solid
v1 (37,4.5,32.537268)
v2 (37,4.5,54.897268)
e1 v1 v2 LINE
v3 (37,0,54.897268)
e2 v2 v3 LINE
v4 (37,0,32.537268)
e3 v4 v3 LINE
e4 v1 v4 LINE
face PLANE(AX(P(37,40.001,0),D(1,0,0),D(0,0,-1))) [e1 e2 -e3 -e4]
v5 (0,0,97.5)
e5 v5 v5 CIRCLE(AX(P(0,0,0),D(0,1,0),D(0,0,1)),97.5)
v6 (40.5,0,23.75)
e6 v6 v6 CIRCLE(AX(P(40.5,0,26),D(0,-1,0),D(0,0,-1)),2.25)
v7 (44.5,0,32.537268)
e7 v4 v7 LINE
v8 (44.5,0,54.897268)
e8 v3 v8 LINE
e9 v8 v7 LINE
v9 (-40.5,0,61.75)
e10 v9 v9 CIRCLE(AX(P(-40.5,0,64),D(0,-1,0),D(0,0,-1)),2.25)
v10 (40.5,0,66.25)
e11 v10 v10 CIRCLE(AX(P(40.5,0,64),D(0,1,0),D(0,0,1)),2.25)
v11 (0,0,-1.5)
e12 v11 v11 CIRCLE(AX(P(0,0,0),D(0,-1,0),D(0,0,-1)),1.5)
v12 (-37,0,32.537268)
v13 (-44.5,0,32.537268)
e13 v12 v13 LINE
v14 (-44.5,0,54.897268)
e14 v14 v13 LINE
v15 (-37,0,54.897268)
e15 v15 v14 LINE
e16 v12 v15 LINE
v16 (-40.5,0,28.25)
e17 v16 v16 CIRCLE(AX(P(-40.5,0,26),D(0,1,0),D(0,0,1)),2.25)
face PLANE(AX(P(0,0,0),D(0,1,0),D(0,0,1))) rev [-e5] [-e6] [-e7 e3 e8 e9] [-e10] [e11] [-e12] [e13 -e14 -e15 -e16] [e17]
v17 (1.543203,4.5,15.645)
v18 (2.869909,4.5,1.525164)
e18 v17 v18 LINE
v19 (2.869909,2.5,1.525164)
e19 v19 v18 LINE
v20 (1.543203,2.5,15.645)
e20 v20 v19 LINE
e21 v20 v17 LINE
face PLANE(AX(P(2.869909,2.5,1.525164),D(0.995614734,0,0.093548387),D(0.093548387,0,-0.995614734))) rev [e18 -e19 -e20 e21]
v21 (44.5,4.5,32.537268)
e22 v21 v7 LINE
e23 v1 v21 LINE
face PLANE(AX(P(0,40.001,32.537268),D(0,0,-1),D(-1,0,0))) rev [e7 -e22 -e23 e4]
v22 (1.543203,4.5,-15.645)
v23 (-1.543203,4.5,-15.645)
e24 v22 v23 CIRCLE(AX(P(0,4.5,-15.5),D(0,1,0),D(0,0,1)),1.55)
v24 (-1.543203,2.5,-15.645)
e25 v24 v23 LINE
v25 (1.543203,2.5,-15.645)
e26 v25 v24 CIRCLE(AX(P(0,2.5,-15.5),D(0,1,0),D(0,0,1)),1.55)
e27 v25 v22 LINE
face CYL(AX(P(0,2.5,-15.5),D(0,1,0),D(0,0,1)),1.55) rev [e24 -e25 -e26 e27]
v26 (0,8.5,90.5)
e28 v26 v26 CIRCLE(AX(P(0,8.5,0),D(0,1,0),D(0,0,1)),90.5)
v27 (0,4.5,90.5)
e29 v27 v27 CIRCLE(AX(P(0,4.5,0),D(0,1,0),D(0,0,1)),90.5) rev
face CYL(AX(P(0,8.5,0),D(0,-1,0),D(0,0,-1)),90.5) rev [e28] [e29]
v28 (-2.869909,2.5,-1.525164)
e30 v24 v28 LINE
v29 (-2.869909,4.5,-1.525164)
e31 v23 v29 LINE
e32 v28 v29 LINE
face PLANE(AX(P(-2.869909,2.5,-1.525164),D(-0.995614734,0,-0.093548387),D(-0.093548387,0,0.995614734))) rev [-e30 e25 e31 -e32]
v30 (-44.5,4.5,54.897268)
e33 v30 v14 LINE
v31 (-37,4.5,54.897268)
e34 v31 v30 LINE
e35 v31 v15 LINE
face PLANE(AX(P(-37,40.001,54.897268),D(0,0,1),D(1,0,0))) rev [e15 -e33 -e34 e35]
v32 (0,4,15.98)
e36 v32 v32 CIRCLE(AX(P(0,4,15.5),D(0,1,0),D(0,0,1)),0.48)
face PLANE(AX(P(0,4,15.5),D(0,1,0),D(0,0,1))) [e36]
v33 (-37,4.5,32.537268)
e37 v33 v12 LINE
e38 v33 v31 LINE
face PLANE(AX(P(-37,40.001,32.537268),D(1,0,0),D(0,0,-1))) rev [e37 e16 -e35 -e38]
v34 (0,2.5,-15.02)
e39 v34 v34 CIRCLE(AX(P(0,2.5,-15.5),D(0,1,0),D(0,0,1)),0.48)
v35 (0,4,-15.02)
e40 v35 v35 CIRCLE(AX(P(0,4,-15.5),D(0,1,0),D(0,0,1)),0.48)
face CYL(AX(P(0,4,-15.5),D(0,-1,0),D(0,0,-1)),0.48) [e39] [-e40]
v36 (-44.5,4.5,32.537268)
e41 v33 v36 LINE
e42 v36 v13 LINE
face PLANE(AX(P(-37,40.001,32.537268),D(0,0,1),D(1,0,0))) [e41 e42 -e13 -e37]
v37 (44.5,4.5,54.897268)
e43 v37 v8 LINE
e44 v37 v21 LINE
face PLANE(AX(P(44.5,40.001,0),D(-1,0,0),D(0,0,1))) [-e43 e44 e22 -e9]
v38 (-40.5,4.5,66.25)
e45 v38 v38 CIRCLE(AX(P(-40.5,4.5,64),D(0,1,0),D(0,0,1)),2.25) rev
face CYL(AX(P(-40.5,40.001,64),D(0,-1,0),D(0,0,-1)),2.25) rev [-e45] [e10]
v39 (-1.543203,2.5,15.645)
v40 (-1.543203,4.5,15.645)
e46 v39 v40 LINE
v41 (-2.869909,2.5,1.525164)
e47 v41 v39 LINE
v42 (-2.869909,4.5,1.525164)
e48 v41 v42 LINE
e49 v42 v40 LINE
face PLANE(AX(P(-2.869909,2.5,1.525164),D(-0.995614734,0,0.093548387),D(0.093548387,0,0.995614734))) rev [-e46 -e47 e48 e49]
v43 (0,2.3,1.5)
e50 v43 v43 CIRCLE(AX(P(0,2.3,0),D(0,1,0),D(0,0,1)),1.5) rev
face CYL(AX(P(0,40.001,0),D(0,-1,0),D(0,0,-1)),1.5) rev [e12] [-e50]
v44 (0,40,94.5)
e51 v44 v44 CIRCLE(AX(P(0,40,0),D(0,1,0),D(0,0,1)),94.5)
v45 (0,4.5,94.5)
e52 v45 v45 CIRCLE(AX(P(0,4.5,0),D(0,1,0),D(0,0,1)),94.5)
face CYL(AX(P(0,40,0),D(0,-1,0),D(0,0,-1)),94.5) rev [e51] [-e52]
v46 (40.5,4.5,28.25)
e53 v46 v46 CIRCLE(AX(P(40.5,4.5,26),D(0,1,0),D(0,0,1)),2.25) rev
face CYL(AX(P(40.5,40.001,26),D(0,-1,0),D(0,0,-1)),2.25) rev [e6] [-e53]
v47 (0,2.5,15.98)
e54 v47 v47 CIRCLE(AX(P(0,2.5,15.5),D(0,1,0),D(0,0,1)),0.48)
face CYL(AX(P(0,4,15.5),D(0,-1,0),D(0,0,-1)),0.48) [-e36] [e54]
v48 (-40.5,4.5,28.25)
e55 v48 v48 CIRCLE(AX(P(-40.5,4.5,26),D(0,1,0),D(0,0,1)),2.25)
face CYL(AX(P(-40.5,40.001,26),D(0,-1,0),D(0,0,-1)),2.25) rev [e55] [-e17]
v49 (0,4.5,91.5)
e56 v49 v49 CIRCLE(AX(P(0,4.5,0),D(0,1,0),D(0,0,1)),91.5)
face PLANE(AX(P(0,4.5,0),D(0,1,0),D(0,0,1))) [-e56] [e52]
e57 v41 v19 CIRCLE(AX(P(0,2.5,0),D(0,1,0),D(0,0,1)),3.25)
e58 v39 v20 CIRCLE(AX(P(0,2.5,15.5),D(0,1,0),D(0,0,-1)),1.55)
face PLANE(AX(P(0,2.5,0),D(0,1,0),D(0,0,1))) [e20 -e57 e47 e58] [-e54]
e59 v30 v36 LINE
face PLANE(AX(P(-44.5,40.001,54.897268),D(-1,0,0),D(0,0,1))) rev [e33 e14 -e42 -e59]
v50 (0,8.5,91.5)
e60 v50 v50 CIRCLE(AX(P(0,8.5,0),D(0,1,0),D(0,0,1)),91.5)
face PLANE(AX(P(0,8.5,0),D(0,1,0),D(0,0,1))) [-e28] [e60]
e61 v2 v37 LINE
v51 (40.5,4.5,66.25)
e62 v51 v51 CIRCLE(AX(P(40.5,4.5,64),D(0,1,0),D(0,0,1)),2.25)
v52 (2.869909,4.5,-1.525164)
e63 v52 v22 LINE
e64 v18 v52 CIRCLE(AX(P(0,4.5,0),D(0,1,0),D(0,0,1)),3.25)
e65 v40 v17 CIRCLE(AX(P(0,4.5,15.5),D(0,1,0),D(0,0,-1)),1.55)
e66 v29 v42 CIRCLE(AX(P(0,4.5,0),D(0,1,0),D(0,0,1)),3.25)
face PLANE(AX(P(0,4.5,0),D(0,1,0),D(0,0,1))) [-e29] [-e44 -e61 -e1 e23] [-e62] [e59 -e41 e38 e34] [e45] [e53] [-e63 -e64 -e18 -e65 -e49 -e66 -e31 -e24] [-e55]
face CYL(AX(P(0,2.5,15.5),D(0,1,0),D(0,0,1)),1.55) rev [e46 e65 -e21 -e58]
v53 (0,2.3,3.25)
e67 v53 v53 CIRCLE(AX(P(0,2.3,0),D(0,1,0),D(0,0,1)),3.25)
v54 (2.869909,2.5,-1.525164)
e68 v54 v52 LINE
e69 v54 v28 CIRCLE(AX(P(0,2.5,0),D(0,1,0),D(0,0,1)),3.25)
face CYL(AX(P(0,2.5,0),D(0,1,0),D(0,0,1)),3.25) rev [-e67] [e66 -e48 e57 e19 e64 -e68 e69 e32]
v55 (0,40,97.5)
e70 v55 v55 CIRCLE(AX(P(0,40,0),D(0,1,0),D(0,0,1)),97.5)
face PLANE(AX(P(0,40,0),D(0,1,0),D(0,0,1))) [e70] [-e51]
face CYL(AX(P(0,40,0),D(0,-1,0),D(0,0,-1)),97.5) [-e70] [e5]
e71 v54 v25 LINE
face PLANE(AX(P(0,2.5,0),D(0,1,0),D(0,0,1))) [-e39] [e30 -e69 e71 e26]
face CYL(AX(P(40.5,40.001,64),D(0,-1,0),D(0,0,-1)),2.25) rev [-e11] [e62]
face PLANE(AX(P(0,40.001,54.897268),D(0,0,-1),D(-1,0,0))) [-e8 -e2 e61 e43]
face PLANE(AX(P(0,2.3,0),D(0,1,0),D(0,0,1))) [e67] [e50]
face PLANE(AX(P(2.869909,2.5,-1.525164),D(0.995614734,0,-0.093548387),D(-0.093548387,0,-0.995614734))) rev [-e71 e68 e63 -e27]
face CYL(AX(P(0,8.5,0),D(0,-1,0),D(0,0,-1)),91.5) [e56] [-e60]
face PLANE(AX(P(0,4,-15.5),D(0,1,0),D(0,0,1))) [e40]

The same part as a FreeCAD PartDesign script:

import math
import FreeCAD as App
import Part
import Sketcher
from FreeCAD import Vector
Q = App.Units.Quantity


def faces_at(feature, points):
    """Names of the faces that lie closest to the given points."""
    faces = feature.Shape.Faces
    near = lambda p: min(range(len(faces)), key=lambda i: faces[i].distToShape(Part.Vertex(*p))[0])
    return sorted({f"Face{near(p) + 1}" for p in points})

doc = App.newDocument("Part")
body = doc.addObject("PartDesign::Body", "Body")

# Sketch on XZ plane
sketch1 = body.newObject("Sketcher::SketchObject", "Sketch")
sketch1.AttachmentSupport = (doc.getObject("XZ_Plane"), [""])
sketch1.MapMode = "FlatFace"
sketch1.addGeometry(Part.Circle(Vector(0, 0, 0), Vector(0, 0, 1), 98), False)
sketch1.addConstraint(Sketcher.Constraint("Coincident", 0, 3, -1, 1))
sketch1.addConstraint(Sketcher.Constraint("Diameter", 0, Q("195 mm")))
pad1 = body.newObject("PartDesign::Pad", "Pad")
pad1.Profile = sketch1
pad1.Length = 40
pad1.Reversed = True
doc.recompute()

thickness = body.newObject("PartDesign::Thickness", "Thickness")
thickness.Base = (pad1, faces_at(pad1, [(0, 40, 0)]))
thickness.Value = 3
thickness.Reversed = True
thickness.Join = "Intersection"

# Sketch on XZ plane
sketch2 = body.newObject("Sketcher::SketchObject", "Sketch001")
sketch2.AttachmentSupport = (doc.getObject("XZ_Plane"), [""])
sketch2.MapMode = "FlatFace"
sketch2.AttachmentOffset = App.Placement(Vector(0, 0, -3), App.Rotation())
sketch2.addGeometry(Part.Circle(Vector(0, 0, 0), Vector(0, 0, 1), 94), False)
sketch2.addConstraint(Sketcher.Constraint("Coincident", 0, 3, -1, 1))
sketch2.addConstraint(Sketcher.Constraint("Diameter", 0, Q("189 mm")))
pad2 = body.newObject("PartDesign::Pad", "Pad001")
pad2.Profile = sketch2
pad2.Length = 1.5
pad2.Reversed = True

# Sketch on XZ plane
sketch3 = body.newObject("Sketcher::SketchObject", "Sketch002")
sketch3.AttachmentSupport = (doc.getObject("XZ_Plane"), [""])
sketch3.MapMode = "FlatFace"
sketch3.AttachmentOffset = App.Placement(Vector(0, 0, -4.5), App.Rotation())
sketch3.addGeometry(Part.LineSegment(Vector(2.9, -1.5, 0), Vector(1.5, -15.6, 0)), False)
sketch3.addGeometry(Part.ArcOfCircle(Part.Circle(Vector(0, -15.5, 0), Vector(0, 0, 1), 1.6), math.radians(-175), math.radians(-5)), False)
sketch3.addGeometry(Part.LineSegment(Vector(-1.5, -15.6, 0), Vector(-2.9, -1.5, 0)), False)
sketch3.addGeometry(Part.ArcOfCircle(Part.Circle(Vector(0, 0, 0), Vector(0, 0, 1), 3.2), math.radians(152), math.radians(208)), False)
sketch3.addGeometry(Part.LineSegment(Vector(-2.9, 1.5, 0), Vector(-1.5, 15.6, 0)), False)
sketch3.addGeometry(Part.ArcOfCircle(Part.Circle(Vector(0, 15.5, 0), Vector(0, 0, 1), 1.6), math.radians(5), math.radians(175)), False)
sketch3.addGeometry(Part.LineSegment(Vector(1.5, 15.6, 0), Vector(2.9, 1.5, 0)), False)
sketch3.addGeometry(Part.ArcOfCircle(Part.Circle(Vector(0, 0, 0), Vector(0, 0, 1), 3.2), math.radians(-28), math.radians(28)), False)
sketch3.addConstraint(Sketcher.Constraint("Tangent", 0, 2, 1, 2))
sketch3.addConstraint(Sketcher.Constraint("Tangent", 1, 1, 2, 1))
sketch3.addConstraint(Sketcher.Constraint("Coincident", 2, 2, 3, 2))
sketch3.addConstraint(Sketcher.Constraint("Coincident", 3, 1, 4, 1))
sketch3.addConstraint(Sketcher.Constraint("Tangent", 4, 2, 5, 2))
sketch3.addConstraint(Sketcher.Constraint("Tangent", 5, 1, 6, 1))
sketch3.addConstraint(Sketcher.Constraint("Coincident", 6, 2, 7, 2))
sketch3.addConstraint(Sketcher.Constraint("Coincident", 7, 1, 0, 1))
sketch3.addConstraint(Sketcher.Constraint("Coincident", 3, 3, -1, 1))
sketch3.addConstraint(Sketcher.Constraint("Coincident", 7, 3, -1, 1))
sketch3.addConstraint(Sketcher.Constraint("Equal", 1, 5))
sketch3.addConstraint(Sketcher.Constraint("Equal", 3, 7))
sketch3.addConstraint(Sketcher.Constraint("Symmetric", 1, 3, 5, 3, -1, 1))
sketch3.addConstraint(Sketcher.Constraint("Symmetric", 0, 2, 1, 1, -2))
sketch3.addConstraint(Sketcher.Constraint("Parallel", 0, 4))
sketch3.addConstraint(Sketcher.Constraint("Parallel", 2, 6))
sketch3.addConstraint(Sketcher.Constraint("Radius", 1, Q("1.55 mm")))
sketch3.addConstraint(Sketcher.Constraint("Radius", 3, Q("3.25 mm")))
sketch3.addConstraint(Sketcher.Constraint("DistanceY", 1, 3, 5, 3, Q("31 mm")))
sketch3.addConstraint(Sketcher.Constraint("DistanceY", 0, 2, -1, 1, Q("15.645 mm")))
pocket1 = body.newObject("PartDesign::Pocket", "Pocket")
pocket1.Profile = sketch3
pocket1.Length = 2
pocket1.Reversed = True

# Sketch on XZ plane
sketch4 = body.newObject("Sketcher::SketchObject", "Sketch003")
sketch4.AttachmentSupport = (doc.getObject("XZ_Plane"), [""])
sketch4.MapMode = "FlatFace"
sketch4.addGeometry(Part.Circle(Vector(0, 0, 0), Vector(0, 0, 1), 1.5), False)
sketch4.addConstraint(Sketcher.Constraint("Coincident", 0, 3, -1, 1))
sketch4.addConstraint(Sketcher.Constraint("Diameter", 0, Q("3 mm")))
pocket2 = body.newObject("PartDesign::Pocket", "Pocket001")
pocket2.Profile = sketch4
pocket2.Type = "UpToFirst"

# Sketch on XZ plane
sketch5 = body.newObject("Sketcher::SketchObject", "Sketch004")
sketch5.AttachmentSupport = (doc.getObject("XZ_Plane"), [""])
sketch5.MapMode = "FlatFace"
sketch5.AttachmentOffset = App.Placement(Vector(0, 0, -2.5), App.Rotation())
sketch5.addGeometry(Part.Circle(Vector(0, 0, 0), Vector(0, 0, 1), 3.2), False)
sketch5.addConstraint(Sketcher.Constraint("Coincident", 0, 3, -1, 1))
sketch5.addConstraint(Sketcher.Constraint("Diameter", 0, Q("6.5 mm")))
pocket3 = body.newObject("PartDesign::Pocket", "Pocket002")
pocket3.Profile = sketch5
pocket3.Length = 0.2
pocket3.Reversed = True

# Sketch on XZ plane
sketch6 = body.newObject("Sketcher::SketchObject", "Sketch005")
sketch6.AttachmentSupport = (doc.getObject("XZ_Plane"), [""])
sketch6.MapMode = "FlatFace"
sketch6.AttachmentOffset = App.Placement(Vector(0, 0, -2.5), App.Rotation())
sketch6.addGeometry(Part.Circle(Vector(0, -15.5, 0), Vector(0, 0, 1), 0.48), False)
sketch6.addGeometry(Part.Circle(Vector(0, 15.5, 0), Vector(0, 0, 1), 0.48), False)
sketch6.addConstraint(Sketcher.Constraint("Equal", 0, 1))
sketch6.addConstraint(Sketcher.Constraint("Symmetric", 0, 3, 1, 3, -1, 1))
sketch6.addConstraint(Sketcher.Constraint("PointOnObject", 0, 3, -2))
sketch6.addConstraint(Sketcher.Constraint("Diameter", 0, Q("0.96 mm")))
sketch6.addConstraint(Sketcher.Constraint("DistanceY", 0, 3, 1, 3, Q("31 mm")))
pad3 = body.newObject("PartDesign::Pad", "Pad002")
pad3.Profile = sketch6
pad3.Length = 1.5
pad3.Reversed = True

# Sketch on XZ plane
sketch7 = body.newObject("Sketcher::SketchObject", "Sketch006")
sketch7.AttachmentSupport = (doc.getObject("XZ_Plane"), [""])
sketch7.MapMode = "FlatFace"
sketch7.AttachmentOffset = App.Placement(Vector(0, 0, -4.5), App.Rotation())
sketch7.addGeometry(Part.Circle(Vector(0, 0, 0), Vector(0, 0, 1), 92), False)
sketch7.addGeometry(Part.Circle(Vector(0, 0, 0), Vector(0, 0, 1), 90), False)
sketch7.addConstraint(Sketcher.Constraint("Coincident", 0, 3, -1, 1))
sketch7.addConstraint(Sketcher.Constraint("Coincident", 1, 3, -1, 1))
sketch7.addConstraint(Sketcher.Constraint("Diameter", 0, Q("183 mm")))
sketch7.addConstraint(Sketcher.Constraint("Diameter", 1, Q("181 mm")))
pad4 = body.newObject("PartDesign::Pad", "Pad003")
pad4.Profile = sketch7
pad4.Length = 4
pad4.Reversed = True

# Sketch on XZ plane
sketch8 = body.newObject("Sketcher::SketchObject", "Sketch007")
sketch8.AttachmentSupport = (doc.getObject("XZ_Plane"), [""])
sketch8.MapMode = "FlatFace"
sketch8.addGeometry(Part.Circle(Vector(40.5, 26, 0), Vector(0, 0, 1), 2.2), False)
sketch8.addConstraint(Sketcher.Constraint("Diameter", 0, Q("4.5 mm")))
sketch8.addConstraint(Sketcher.Constraint("DistanceY", -1, 1, 0, 3, Q("26 mm")))
sketch8.addConstraint(Sketcher.Constraint("DistanceX", -1, 1, 0, 3, Q("40.5 mm")))
pocket4 = body.newObject("PartDesign::Pocket", "Pocket003")
pocket4.Profile = sketch8
pocket4.Type = "UpToFirst"

# Sketch on XZ plane
sketch9 = body.newObject("Sketcher::SketchObject", "Sketch008")
sketch9.AttachmentSupport = (doc.getObject("XZ_Plane"), [""])
sketch9.MapMode = "FlatFace"
sketch9.addGeometry(Part.Circle(Vector(40.5, 64, 0), Vector(0, 0, 1), 2.2), False)
sketch9.addConstraint(Sketcher.Constraint("Diameter", 0, Q("4.5 mm")))
sketch9.addConstraint(Sketcher.Constraint("DistanceY", -1, 1, 0, 3, Q("64 mm")))
sketch9.addConstraint(Sketcher.Constraint("DistanceX", -1, 1, 0, 3, Q("40.5 mm")))
pocket5 = body.newObject("PartDesign::Pocket", "Pocket004")
pocket5.Profile = sketch9
pocket5.Type = "UpToFirst"

# Sketch on XZ plane
sketch10 = body.newObject("Sketcher::SketchObject", "Sketch009")
sketch10.AttachmentSupport = (doc.getObject("XZ_Plane"), [""])
sketch10.MapMode = "FlatFace"
sketch10.addGeometry(Part.Circle(Vector(-40.5, 64, 0), Vector(0, 0, 1), 2.2), False)
sketch10.addConstraint(Sketcher.Constraint("Diameter", 0, Q("4.5 mm")))
sketch10.addConstraint(Sketcher.Constraint("DistanceY", -1, 1, 0, 3, Q("64 mm")))
sketch10.addConstraint(Sketcher.Constraint("DistanceX", 0, 3, -1, 1, Q("40.5 mm")))
pocket6 = body.newObject("PartDesign::Pocket", "Pocket005")
pocket6.Profile = sketch10
pocket6.Type = "UpToFirst"

# Sketch on XZ plane
sketch11 = body.newObject("Sketcher::SketchObject", "Sketch010")
sketch11.AttachmentSupport = (doc.getObject("XZ_Plane"), [""])
sketch11.MapMode = "FlatFace"
sketch11.addGeometry(Part.Circle(Vector(-40.5, 26, 0), Vector(0, 0, 1), 2.2), False)
sketch11.addConstraint(Sketcher.Constraint("Diameter", 0, Q("4.5 mm")))
sketch11.addConstraint(Sketcher.Constraint("DistanceY", -1, 1, 0, 3, Q("26 mm")))
sketch11.addConstraint(Sketcher.Constraint("DistanceX", 0, 3, -1, 1, Q("40.5 mm")))
pocket7 = body.newObject("PartDesign::Pocket", "Pocket006")
pocket7.Profile = sketch11
pocket7.Type = "UpToFirst"

# Sketch on XZ plane
sketch12 = body.newObject("Sketcher::SketchObject", "Sketch011")
sketch12.AttachmentSupport = (doc.getObject("XZ_Plane"), [""])
sketch12.MapMode = "FlatFace"
sketch12.addGeometry(Part.LineSegment(Vector(37, 55, 0), Vector(37, 33, 0)), False)
sketch12.addGeometry(Part.LineSegment(Vector(37, 33, 0), Vector(44, 33, 0)), False)
sketch12.addGeometry(Part.LineSegment(Vector(44, 33, 0), Vector(44, 55, 0)), False)
sketch12.addGeometry(Part.LineSegment(Vector(44, 55, 0), Vector(37, 55, 0)), False)
sketch12.addConstraint(Sketcher.Constraint("Coincident", 0, 2, 1, 1))
sketch12.addConstraint(Sketcher.Constraint("Coincident", 1, 2, 2, 1))
sketch12.addConstraint(Sketcher.Constraint("Coincident", 2, 2, 3, 1))
sketch12.addConstraint(Sketcher.Constraint("Coincident", 3, 2, 0, 1))
sketch12.addConstraint(Sketcher.Constraint("Vertical", 0))
sketch12.addConstraint(Sketcher.Constraint("Horizontal", 1))
sketch12.addConstraint(Sketcher.Constraint("Vertical", 2))
sketch12.addConstraint(Sketcher.Constraint("Horizontal", 3))
sketch12.addConstraint(Sketcher.Constraint("DistanceX", 1, 1, 1, 2, Q("7.5 mm")))
sketch12.addConstraint(Sketcher.Constraint("DistanceX", -1, 1, 0, 2, Q("37 mm")))
sketch12.addConstraint(Sketcher.Constraint("DistanceY", 0, 2, 0, 1, Q("22.36 mm")))
sketch12.addConstraint(Sketcher.Constraint("DistanceY", -1, 1, 0, 2, Q("32.537268 mm")))
pocket8 = body.newObject("PartDesign::Pocket", "Pocket007")
pocket8.Profile = sketch12
pocket8.Type = "UpToFirst"

# Sketch on XZ plane
sketch13 = body.newObject("Sketcher::SketchObject", "Sketch012")
sketch13.AttachmentSupport = (doc.getObject("XZ_Plane"), [""])
sketch13.MapMode = "FlatFace"
sketch13.addGeometry(Part.LineSegment(Vector(-44, 55, 0), Vector(-44, 33, 0)), False)
sketch13.addGeometry(Part.LineSegment(Vector(-44, 33, 0), Vector(-37, 33, 0)), False)
sketch13.addGeometry(Part.LineSegment(Vector(-37, 33, 0), Vector(-37, 55, 0)), False)
sketch13.addGeometry(Part.LineSegment(Vector(-37, 55, 0), Vector(-44, 55, 0)), False)
sketch13.addConstraint(Sketcher.Constraint("Coincident", 0, 2, 1, 1))
sketch13.addConstraint(Sketcher.Constraint("Coincident", 1, 2, 2, 1))
sketch13.addConstraint(Sketcher.Constraint("Coincident", 2, 2, 3, 1))
sketch13.addConstraint(Sketcher.Constraint("Coincident", 3, 2, 0, 1))
sketch13.addConstraint(Sketcher.Constraint("Vertical", 0))
sketch13.addConstraint(Sketcher.Constraint("Horizontal", 1))
sketch13.addConstraint(Sketcher.Constraint("Vertical", 2))
sketch13.addConstraint(Sketcher.Constraint("Horizontal", 3))
sketch13.addConstraint(Sketcher.Constraint("DistanceX", 1, 1, 1, 2, Q("7.5 mm")))
sketch13.addConstraint(Sketcher.Constraint("DistanceX", 1, 2, -1, 1, Q("37 mm")))
sketch13.addConstraint(Sketcher.Constraint("DistanceY", 0, 2, 0, 1, Q("22.36 mm")))
sketch13.addConstraint(Sketcher.Constraint("DistanceY", -1, 1, 0, 2, Q("32.537268 mm")))
pocket9 = body.newObject("PartDesign::Pocket", "Pocket008")
pocket9.Profile = sketch13
pocket9.Type = "UpToFirst"

doc.recompute()
